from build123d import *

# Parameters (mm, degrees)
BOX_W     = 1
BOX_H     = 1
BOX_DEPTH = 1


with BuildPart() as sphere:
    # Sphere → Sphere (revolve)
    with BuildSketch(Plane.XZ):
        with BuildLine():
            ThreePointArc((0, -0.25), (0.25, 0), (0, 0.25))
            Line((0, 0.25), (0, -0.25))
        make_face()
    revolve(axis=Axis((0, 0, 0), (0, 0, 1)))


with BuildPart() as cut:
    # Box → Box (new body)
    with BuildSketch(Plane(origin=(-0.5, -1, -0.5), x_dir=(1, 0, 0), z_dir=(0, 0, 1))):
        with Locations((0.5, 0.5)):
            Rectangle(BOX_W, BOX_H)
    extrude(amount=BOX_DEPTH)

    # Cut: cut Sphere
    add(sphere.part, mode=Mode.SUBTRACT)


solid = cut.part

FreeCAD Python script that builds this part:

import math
import FreeCAD as App
import Part
import Sketcher
from FreeCAD import Vector
Q = App.Units.Quantity


def add_polygon(sketch, points):
    """Adds a closed chain of lines whose ends are joined by coincident constraints."""
    first, n = sketch.GeometryCount, len(points)
    for a, b in zip(points, points[1:] + points[:1]):
        sketch.addGeometry(Part.LineSegment(App.Vector(*a, 0), App.Vector(*b, 0)), False)
    for i in range(n):
        sketch.addConstraint(Sketcher.Constraint("Coincident", first + i, 2, first + (i + 1) % n, 1))

doc = App.newDocument("Part")
body = doc.addObject("PartDesign::Body", "Body")

# Sketch on XZ plane
sketch1 = body.newObject("Sketcher::SketchObject", "Sketch")
sketch1.AttachmentSupport = (doc.getObject("XZ_Plane"), [""])
sketch1.MapMode = "FlatFace"
sketch1.addGeometry([
    Part.ArcOfCircle(Part.Circle(Vector(0, 0, 0), Vector(0, 0, 1), 0.25), math.radians(-90), math.radians(90)),
    Part.LineSegment(Vector(0, 0.25, 0), Vector(0, -0.25, 0)),
], False)
sketch1.addConstraint([
    Sketcher.Constraint("Coincident", 0, 1, 1, 2),
    Sketcher.Constraint("Coincident", 1, 1, 0, 2),
    Sketcher.Constraint("Vertical", 1),
    Sketcher.Constraint("Coincident", 0, 3, -1, 1),
    Sketcher.Constraint("PointOnObject", 0, 1, -2),
    Sketcher.Constraint("Radius", 0, Q("0.25 mm")),
])
revolution = body.newObject("PartDesign::Revolution", "Revolution")
revolution.Profile = sketch1
revolution.ReferenceAxis = (sketch1, ["V_Axis"])
revolution.Angle = 360
body2 = doc.addObject("PartDesign::Body", "Body001")

# Sketch on XY plane
sketch2 = body2.newObject("Sketcher::SketchObject", "Sketch001")
sketch2.AttachmentSupport = (doc.getObject("XY_Plane001"), [""])
sketch2.MapMode = "FlatFace"
sketch2.AttachmentOffset = App.Placement(Vector(0, 0, -0.5), App.Rotation())
add_polygon(sketch2, [(-0.5, 0), (-0.5, -1), (0.5, -1), (0.5, 0)])  # lines 0-3
sketch2.addConstraint([
    Sketcher.Constraint("Vertical", 0),
    Sketcher.Constraint("Horizontal", 1),
    Sketcher.Constraint("Vertical", 2),
    Sketcher.Constraint("Horizontal", 3),
    Sketcher.Constraint("Symmetric", 2, 2, 3, 2, -1, 1),
    Sketcher.Constraint("Equal", 3, 0),
    Sketcher.Constraint("DistanceX", 1, 1, 1, 2, Q("1 mm")),
])
pad1 = body2.newObject("PartDesign::Pad", "Pad")
pad1.Profile = sketch2
pad1.Length = 1
doc.recompute()

boolean = body2.newObject("PartDesign::Boolean", "Boolean")
boolean.Type = "Cut"
boolean.addObjects([body])

doc.recompute()
